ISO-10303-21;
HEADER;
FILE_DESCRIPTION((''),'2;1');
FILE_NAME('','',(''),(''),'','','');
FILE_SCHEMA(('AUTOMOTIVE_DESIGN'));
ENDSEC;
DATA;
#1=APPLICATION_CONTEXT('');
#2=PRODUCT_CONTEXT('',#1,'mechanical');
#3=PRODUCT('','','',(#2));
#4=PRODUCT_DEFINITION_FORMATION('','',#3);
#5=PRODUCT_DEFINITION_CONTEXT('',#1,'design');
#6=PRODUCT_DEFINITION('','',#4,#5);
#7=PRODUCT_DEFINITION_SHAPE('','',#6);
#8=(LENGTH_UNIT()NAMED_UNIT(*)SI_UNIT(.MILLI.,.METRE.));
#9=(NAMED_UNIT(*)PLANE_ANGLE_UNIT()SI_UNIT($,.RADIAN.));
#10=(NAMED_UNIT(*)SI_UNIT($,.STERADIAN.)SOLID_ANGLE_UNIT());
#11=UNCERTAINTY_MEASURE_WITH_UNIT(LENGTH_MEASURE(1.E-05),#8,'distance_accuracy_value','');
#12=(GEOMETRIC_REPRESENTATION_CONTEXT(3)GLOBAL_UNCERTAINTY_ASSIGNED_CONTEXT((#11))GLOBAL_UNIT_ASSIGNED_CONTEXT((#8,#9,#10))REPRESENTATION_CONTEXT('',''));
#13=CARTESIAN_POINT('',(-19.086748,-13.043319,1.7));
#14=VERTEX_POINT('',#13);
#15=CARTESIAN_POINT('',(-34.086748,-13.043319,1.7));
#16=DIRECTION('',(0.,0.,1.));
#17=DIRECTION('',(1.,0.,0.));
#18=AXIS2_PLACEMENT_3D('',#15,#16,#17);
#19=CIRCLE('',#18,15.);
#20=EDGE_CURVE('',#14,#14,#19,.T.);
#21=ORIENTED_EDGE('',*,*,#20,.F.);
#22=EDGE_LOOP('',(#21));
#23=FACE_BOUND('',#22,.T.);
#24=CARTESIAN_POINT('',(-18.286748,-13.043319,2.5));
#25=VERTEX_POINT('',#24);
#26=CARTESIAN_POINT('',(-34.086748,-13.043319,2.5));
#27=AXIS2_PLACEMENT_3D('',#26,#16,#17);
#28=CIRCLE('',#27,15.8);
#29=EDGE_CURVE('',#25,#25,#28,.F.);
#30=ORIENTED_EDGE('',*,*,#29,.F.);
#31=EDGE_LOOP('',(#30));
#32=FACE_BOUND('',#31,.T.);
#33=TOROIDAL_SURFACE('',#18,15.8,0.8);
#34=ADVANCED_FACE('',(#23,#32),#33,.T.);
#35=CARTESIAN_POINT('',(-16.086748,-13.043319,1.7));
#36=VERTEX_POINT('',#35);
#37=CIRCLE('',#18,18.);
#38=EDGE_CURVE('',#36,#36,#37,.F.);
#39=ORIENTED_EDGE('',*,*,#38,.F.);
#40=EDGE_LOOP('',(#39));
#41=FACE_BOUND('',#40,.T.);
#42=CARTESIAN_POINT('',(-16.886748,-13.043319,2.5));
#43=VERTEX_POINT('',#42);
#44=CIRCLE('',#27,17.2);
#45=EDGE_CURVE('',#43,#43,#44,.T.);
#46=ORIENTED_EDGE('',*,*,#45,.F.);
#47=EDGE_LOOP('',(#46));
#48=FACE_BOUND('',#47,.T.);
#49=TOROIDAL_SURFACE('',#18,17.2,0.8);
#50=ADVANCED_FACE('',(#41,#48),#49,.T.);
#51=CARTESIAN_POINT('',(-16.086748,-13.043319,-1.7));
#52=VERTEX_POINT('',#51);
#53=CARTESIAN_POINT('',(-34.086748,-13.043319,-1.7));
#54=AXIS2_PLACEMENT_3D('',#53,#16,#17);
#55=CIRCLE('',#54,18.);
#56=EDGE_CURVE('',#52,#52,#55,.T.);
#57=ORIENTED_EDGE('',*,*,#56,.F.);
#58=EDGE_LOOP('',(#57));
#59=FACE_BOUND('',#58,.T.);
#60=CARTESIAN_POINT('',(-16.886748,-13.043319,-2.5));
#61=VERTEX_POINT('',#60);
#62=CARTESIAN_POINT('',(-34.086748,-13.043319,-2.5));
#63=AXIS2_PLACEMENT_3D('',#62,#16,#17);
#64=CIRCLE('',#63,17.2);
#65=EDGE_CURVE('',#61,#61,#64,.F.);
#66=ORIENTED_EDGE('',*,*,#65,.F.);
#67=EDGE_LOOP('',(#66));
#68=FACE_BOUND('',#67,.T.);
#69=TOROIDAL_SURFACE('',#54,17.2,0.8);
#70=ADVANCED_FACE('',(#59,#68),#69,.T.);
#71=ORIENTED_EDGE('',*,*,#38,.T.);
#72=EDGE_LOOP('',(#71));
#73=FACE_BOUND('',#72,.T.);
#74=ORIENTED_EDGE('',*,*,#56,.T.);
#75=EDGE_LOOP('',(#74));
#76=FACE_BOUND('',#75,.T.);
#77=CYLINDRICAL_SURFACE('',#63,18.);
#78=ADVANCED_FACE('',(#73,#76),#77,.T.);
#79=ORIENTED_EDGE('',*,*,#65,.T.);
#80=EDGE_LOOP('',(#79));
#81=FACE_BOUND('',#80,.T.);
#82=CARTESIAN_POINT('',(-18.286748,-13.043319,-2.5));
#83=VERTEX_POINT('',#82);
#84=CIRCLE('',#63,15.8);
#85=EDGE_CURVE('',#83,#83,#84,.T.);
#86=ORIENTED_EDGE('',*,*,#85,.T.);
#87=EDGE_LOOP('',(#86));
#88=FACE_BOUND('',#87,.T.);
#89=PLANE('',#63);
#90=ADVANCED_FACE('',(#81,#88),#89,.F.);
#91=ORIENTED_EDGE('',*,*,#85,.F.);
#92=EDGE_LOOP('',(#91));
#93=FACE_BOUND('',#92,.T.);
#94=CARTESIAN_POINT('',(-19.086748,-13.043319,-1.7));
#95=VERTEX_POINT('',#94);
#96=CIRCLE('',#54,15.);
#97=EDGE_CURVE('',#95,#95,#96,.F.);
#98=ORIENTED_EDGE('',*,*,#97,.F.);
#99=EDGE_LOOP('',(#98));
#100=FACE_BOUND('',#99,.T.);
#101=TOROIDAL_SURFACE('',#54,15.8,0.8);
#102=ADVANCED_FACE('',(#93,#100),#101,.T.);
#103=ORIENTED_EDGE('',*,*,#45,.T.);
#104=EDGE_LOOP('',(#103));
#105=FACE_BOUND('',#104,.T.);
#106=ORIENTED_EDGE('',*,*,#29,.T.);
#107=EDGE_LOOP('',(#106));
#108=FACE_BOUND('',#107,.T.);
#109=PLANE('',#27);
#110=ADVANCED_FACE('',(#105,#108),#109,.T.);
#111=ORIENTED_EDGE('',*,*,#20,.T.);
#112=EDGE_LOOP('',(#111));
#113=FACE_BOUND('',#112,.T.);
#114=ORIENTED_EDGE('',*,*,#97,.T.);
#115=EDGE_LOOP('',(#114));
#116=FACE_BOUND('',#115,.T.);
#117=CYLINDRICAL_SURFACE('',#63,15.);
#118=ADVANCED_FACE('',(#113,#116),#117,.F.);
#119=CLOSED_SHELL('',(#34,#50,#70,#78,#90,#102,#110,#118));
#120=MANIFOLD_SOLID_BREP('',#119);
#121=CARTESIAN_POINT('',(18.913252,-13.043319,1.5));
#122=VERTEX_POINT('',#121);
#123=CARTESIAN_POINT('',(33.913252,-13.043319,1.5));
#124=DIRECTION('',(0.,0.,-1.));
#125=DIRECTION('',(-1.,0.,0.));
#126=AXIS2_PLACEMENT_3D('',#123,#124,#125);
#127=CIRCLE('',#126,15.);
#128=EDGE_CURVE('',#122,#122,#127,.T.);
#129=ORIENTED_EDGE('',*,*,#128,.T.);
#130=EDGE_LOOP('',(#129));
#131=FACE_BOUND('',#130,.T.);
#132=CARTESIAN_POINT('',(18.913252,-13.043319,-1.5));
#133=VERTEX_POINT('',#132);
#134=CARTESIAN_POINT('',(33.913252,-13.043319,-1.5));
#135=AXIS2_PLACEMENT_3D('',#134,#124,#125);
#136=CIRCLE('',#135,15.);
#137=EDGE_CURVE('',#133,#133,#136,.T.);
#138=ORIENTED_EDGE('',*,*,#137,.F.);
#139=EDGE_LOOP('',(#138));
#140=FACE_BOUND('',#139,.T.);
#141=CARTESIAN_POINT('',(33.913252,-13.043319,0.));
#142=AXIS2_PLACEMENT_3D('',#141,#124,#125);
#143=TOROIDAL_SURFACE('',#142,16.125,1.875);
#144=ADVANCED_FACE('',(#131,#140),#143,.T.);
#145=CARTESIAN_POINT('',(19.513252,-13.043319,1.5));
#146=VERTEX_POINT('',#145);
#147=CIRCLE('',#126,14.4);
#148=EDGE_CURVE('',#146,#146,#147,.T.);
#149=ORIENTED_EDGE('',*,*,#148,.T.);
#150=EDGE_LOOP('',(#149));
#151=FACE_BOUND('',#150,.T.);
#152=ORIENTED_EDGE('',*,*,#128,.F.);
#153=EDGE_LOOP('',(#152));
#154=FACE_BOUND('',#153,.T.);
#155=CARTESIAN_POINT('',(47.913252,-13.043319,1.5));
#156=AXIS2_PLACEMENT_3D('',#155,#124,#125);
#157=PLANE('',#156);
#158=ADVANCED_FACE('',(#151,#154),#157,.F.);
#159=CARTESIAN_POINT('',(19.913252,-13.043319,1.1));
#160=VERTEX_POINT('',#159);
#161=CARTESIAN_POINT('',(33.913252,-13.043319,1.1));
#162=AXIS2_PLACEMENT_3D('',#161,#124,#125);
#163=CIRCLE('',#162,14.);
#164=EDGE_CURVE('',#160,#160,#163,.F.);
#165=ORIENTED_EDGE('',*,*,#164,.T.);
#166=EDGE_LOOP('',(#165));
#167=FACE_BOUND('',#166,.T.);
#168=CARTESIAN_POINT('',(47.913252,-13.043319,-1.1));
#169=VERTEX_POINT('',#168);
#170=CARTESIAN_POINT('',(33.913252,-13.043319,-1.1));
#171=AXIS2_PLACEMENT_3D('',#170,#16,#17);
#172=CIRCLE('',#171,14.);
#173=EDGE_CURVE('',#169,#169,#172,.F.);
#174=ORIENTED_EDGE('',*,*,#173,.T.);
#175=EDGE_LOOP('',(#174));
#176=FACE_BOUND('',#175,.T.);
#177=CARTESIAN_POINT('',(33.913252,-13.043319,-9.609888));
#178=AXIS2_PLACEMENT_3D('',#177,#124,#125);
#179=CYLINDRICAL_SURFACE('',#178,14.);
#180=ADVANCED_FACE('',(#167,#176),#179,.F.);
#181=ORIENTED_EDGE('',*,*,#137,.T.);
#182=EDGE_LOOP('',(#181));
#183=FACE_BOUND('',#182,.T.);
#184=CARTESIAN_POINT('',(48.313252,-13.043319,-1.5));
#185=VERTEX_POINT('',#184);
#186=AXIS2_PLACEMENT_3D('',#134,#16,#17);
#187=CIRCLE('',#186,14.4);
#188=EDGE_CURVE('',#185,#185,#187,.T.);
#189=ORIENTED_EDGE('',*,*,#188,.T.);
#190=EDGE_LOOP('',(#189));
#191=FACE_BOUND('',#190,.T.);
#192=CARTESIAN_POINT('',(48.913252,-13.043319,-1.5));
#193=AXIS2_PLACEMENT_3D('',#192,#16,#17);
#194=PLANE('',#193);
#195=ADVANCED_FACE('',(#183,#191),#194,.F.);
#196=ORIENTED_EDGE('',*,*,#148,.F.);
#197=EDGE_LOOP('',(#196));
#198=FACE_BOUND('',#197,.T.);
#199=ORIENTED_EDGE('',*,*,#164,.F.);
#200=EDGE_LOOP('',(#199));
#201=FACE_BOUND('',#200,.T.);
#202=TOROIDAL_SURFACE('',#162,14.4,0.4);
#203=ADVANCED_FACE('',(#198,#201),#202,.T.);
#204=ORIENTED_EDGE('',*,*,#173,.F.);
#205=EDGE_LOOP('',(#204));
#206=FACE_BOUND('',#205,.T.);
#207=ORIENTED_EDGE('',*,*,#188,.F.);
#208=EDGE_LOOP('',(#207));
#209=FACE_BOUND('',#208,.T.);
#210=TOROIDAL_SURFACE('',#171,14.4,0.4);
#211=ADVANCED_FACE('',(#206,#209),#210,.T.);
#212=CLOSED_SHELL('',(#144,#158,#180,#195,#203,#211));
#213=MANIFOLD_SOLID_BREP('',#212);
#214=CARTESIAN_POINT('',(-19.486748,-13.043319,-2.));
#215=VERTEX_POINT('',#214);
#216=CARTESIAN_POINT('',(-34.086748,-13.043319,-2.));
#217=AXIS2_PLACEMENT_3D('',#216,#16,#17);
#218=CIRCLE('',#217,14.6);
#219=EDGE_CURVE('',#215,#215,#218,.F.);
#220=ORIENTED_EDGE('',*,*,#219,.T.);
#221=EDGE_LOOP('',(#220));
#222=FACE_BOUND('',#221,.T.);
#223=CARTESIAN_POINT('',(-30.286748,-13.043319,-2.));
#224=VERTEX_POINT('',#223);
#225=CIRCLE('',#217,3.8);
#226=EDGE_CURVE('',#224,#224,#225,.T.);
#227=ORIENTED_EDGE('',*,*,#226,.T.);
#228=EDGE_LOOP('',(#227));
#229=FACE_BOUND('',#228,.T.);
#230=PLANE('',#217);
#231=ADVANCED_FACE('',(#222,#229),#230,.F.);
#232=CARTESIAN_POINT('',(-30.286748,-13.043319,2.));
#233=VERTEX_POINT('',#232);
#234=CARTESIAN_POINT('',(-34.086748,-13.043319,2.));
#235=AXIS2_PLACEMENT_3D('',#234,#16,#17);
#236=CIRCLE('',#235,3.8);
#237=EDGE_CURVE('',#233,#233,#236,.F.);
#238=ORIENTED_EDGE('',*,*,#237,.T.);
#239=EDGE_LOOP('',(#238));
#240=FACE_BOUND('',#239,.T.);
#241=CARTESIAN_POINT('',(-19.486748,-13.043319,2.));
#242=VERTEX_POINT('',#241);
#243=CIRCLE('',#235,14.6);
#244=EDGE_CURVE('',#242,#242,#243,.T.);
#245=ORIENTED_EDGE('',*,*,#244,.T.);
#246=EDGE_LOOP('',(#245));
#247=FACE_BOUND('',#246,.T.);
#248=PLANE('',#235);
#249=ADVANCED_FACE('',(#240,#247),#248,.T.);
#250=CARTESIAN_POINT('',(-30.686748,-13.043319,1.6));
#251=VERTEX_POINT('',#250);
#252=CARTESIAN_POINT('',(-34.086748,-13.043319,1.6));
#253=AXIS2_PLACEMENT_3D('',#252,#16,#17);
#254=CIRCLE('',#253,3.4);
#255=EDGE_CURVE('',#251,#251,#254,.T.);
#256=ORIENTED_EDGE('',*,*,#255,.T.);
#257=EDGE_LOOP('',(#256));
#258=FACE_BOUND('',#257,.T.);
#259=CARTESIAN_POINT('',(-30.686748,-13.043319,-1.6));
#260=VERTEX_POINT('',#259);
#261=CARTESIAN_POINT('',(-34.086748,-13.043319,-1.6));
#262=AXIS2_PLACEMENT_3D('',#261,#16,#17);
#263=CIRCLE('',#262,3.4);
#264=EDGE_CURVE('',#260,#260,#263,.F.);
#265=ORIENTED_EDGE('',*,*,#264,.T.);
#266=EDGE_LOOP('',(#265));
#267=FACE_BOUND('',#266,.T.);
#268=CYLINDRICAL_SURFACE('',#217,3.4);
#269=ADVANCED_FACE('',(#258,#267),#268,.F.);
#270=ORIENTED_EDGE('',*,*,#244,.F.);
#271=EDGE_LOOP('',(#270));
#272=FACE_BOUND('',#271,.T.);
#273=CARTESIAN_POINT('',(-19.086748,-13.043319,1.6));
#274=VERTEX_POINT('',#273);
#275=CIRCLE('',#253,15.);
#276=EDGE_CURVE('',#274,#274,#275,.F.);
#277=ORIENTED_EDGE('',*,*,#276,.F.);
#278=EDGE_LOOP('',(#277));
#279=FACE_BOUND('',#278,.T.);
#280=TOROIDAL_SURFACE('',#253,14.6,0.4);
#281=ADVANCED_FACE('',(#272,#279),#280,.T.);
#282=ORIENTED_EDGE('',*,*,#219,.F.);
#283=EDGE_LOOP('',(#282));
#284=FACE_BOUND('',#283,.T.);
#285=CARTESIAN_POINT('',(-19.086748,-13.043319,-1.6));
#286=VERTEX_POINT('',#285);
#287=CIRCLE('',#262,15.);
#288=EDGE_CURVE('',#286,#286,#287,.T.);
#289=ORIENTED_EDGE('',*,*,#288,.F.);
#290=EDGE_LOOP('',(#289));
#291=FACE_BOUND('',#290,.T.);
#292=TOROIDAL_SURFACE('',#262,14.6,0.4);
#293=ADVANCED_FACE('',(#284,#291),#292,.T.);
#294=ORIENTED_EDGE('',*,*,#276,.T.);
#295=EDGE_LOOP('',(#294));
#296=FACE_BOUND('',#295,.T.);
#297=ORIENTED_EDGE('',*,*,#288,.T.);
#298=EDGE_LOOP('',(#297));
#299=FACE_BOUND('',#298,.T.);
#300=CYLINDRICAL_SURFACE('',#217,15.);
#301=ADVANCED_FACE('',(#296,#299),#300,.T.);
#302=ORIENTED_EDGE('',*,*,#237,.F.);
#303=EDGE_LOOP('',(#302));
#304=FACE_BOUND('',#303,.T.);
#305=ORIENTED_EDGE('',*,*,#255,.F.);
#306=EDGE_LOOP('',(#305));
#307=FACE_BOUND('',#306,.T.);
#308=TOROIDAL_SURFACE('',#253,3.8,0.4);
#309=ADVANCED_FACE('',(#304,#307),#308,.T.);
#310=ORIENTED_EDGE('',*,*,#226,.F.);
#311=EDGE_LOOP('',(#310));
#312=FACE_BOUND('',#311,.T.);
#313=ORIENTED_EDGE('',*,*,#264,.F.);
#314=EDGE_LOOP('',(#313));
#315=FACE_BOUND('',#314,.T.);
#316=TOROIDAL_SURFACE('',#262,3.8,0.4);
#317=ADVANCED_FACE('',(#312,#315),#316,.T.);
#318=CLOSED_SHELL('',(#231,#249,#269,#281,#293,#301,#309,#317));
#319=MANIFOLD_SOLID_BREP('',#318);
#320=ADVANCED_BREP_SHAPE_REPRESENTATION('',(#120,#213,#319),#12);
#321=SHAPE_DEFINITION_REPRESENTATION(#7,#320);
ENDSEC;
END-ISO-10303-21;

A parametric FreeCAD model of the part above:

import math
import FreeCAD as App
import Part
import Sketcher


def edges_at(feature, points):
    """Names of the edges that pass closest to the given points."""
    edges = feature.Shape.Edges
    near = lambda p: min(range(len(edges)), key=lambda i: edges[i].distToShape(Part.Vertex(*p))[0])
    return sorted({f"Edge{near(p) + 1}" for p in points})

doc = App.newDocument("Part")
params = doc.addObject("Spreadsheet::Sheet", "Params")
for row, (alias, value) in enumerate([
    ("sketch1_diameter", "30 mm"),
    ("sketch1_diameter2", "6.8 mm"),
    ("pad1_length", "2 mm"),
    ("pad1_length2", "2 mm"),
    ("fillet_radius", "0.4 mm"),
    ("sketch2_diameter", "36 mm"),
    ("sketch2_diameter2", "30 mm"),
    ("pad2_length", "2.5 mm"),
    ("pad2_length2", "2.5 mm"),
    ("fillet2_radius", "0.8 mm"),
    ("sketch3_width", "1 mm"),
    ("sketch3_height", "3 mm"),
    ("revolution_angle", "360 deg"),
    ("fillet3_radius", "0.4 mm"),
], start=1):
    params.set(f"A{row}", alias)
    params.set(f"B{row}", "=" + value)
    params.setAlias(f"B{row}", alias)

body = doc.addObject("PartDesign::Body", "Body")

# Sketch on XY plane
sketch1 = doc.addObject("Sketcher::SketchObject", "Sketch")
body.addObject(sketch1)
sketch1.AttachmentSupport = (doc.XY_Plane, [""])
sketch1.MapMode = "FlatFace"
sketch1.addGeometry([
    Part.Circle(App.Vector(-34.086748, -13.043319, 0), App.Vector(0, 0, 1), 15),
    Part.Circle(App.Vector(-34.086748, -13.043319, 0), App.Vector(0, 0, 1), 3.4),
], False)
sketch1.addConstraint([
    Sketcher.Constraint("Coincident", 1, 3, 0, 3),
    Sketcher.Constraint("Diameter", 0, 30.0),
    Sketcher.Constraint("Diameter", 1, 6.8),
    Sketcher.Constraint("DistanceY", 0, 3, -1, 1, 13.043319),
    Sketcher.Constraint("DistanceX", 0, 3, -1, 1, 34.086748),
])
sketch1.setExpression("Constraints[1]", "Params.sketch1_diameter")
sketch1.setExpression("Constraints[2]", "Params.sketch1_diameter2")
pad1 = doc.addObject("PartDesign::Pad", "Pad")
body.addObject(pad1)
pad1.Profile = sketch1
pad1.Type = "TwoLengths"
pad1.setExpression("Length", "Params.pad1_length")
pad1.setExpression("Length2", "Params.pad1_length2")
doc.recompute()

fillet = doc.addObject("PartDesign::Fillet", "Fillet")
body.addObject(fillet)
fillet.Base = (pad1, edges_at(pad1, [
    (-49.087, -13.043, -2),
    (-37.487, -13.043, -2),
    (-49.087, -13.043, 2),
    (-37.487, -13.043, 2),
]))
fillet.setExpression("Radius", "Params.fillet_radius")
body2 = doc.addObject("PartDesign::Body", "Body001")

# Sketch on XY plane
sketch2 = doc.addObject("Sketcher::SketchObject", "Sketch001")
body2.addObject(sketch2)
sketch2.AttachmentSupport = (doc.getObject("XY_Plane001"), [""])
sketch2.MapMode = "FlatFace"
sketch2.addGeometry([
    Part.Circle(App.Vector(-34.086748, -13.043319, 0), App.Vector(0, 0, 1), 18),
    Part.Circle(App.Vector(-34.086748, -13.043319, 0), App.Vector(0, 0, 1), 15),
], False)
sketch2.addConstraint([
    Sketcher.Constraint("Coincident", 1, 3, 0, 3),
    Sketcher.Constraint("Diameter", 0, 36.0),
    Sketcher.Constraint("Diameter", 1, 30.0),
    Sketcher.Constraint("DistanceY", 0, 3, -1, 1, 13.043319),
    Sketcher.Constraint("DistanceX", 0, 3, -1, 1, 34.086748),
])
sketch2.setExpression("Constraints[1]", "Params.sketch2_diameter")
sketch2.setExpression("Constraints[2]", "Params.sketch2_diameter2")
pad2 = doc.addObject("PartDesign::Pad", "Pad001")
body2.addObject(pad2)
pad2.Profile = sketch2
pad2.Type = "TwoLengths"
pad2.setExpression("Length", "Params.pad2_length")
pad2.setExpression("Length2", "Params.pad2_length2")
doc.recompute()

fillet2 = doc.addObject("PartDesign::Fillet", "Fillet001")
body2.addObject(fillet2)
fillet2.Base = (pad2, edges_at(pad2, [
    (-52.087, -13.043, -2.5),
    (-49.087, -13.043, -2.5),
    (-52.087, -13.043, 2.5),
    (-49.087, -13.043, 2.5),
]))
fillet2.setExpression("Radius", "Params.fillet2_radius")
body3 = doc.addObject("PartDesign::Body", "Body002")

# Sketch on XZ plane
sketch3 = doc.addObject("Sketcher::SketchObject", "Sketch002")
body3.addObject(sketch3)
sketch3.AttachmentSupport = (doc.getObject("XZ_Plane002"), [""])
sketch3.MapMode = "FlatFace"
sketch3.AttachmentOffset = App.Placement(App.Vector(0, 0, 13.043319), App.Rotation())
sketch3.addGeometry([
    Part.LineSegment(App.Vector(48.913252, -1.5, 0), App.Vector(47.913252, -1.5, 0)),
    Part.LineSegment(App.Vector(47.913252, -1.5, 0), App.Vector(47.913252, 1.5, 0)),
    Part.LineSegment(App.Vector(47.913252, 1.5, 0), App.Vector(48.913252, 1.5, 0)),
    Part.ArcOfCircle(Part.Circle(App.Vector(50.038252, 0, 0), App.Vector(0, 0, 1), 1.875), math.radians(-126.869898), math.radians(126.869898)),
], False)
sketch3.addGeometry(Part.LineSegment(App.Vector(33.913252, -1.5, 0), App.Vector(33.913252, 1.5, 0)), True)  # axis
sketch3.addConstraint([
    Sketcher.Constraint("Coincident", 0, 2, 1, 1),
    Sketcher.Constraint("Coincident", 1, 2, 2, 1),
    Sketcher.Constraint("Coincident", 2, 2, 3, 2),
    Sketcher.Constraint("Coincident", 3, 1, 0, 1),
    Sketcher.Constraint("Horizontal", 0),
    Sketcher.Constraint("Vertical", 1),
    Sketcher.Constraint("Horizontal", 2),
    Sketcher.Constraint("Vertical", 4),
    Sketcher.Constraint("Symmetric", 2, 2, 3, 1, -1),
    Sketcher.Constraint("Horizontal", 3, 1, 4, 1),
    Sketcher.Constraint("Horizontal", 2, 2, 4, 2),
    Sketcher.Constraint("DistanceX", 0, 2, 0, 1, 1.0),
    Sketcher.Constraint("DistanceY", 1, 1, 1, 2, 3.0),
    Sketcher.Constraint("Radius", 3, 1.875),
    Sketcher.Constraint("DistanceX", 4, 1, 0, 2, 14.0),
    Sketcher.Constraint("DistanceX", -1, 1, 3, 3, 50.038252),
])
sketch3.setExpression("Constraints[11]", "Params.sketch3_width")
sketch3.setExpression("Constraints[12]", "Params.sketch3_height")
revolution = doc.addObject("PartDesign::Revolution", "Revolution")
body3.addObject(revolution)
revolution.Profile = sketch3
revolution.ReferenceAxis = (sketch3, ["Axis0"])
revolution.setExpression("Angle", "Params.revolution_angle")
doc.recompute()

fillet3 = doc.addObject("PartDesign::Fillet", "Fillet002")
body3.addObject(fillet3)
fillet3.Base = (revolution, edges_at(revolution, [(47.913, -13.043, -1.5), (47.913, -13.043, 1.5)]))
fillet3.setExpression("Radius", "Params.fillet3_radius")

doc.recompute()
